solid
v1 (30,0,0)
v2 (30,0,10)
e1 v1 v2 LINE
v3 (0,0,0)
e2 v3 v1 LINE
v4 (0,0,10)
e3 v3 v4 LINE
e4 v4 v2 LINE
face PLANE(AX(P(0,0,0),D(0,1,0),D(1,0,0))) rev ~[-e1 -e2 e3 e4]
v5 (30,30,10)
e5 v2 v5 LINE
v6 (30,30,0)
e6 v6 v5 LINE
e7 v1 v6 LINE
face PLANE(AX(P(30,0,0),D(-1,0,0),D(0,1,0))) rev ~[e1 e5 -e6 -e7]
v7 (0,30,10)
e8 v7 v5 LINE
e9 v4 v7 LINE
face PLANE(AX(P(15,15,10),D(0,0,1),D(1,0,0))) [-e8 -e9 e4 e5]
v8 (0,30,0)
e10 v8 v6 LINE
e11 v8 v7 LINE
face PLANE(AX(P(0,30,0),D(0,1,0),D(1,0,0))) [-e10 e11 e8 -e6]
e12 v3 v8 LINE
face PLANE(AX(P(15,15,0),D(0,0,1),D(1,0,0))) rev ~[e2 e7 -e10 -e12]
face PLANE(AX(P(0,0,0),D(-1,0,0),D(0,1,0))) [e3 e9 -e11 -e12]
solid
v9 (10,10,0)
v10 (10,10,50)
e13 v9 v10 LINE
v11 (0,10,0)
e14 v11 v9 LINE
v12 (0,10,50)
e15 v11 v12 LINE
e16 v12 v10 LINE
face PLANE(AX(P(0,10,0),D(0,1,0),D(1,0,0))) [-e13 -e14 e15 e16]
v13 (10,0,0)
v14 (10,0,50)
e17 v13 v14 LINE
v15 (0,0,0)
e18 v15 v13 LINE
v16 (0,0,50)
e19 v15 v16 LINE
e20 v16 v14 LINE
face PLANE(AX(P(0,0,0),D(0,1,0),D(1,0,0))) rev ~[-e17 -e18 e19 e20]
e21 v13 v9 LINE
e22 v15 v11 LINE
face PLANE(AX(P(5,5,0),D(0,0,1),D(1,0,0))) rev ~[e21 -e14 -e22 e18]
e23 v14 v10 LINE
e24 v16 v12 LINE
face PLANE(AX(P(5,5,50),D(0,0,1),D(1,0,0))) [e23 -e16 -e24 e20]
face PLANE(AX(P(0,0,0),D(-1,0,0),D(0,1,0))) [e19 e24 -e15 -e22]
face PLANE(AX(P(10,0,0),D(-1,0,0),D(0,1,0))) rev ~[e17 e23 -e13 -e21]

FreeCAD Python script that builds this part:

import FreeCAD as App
import Part
import Sketcher
Q = App.Units.Quantity

doc = App.newDocument("Part")
params = doc.addObject("Spreadsheet::Sheet", "Params")
for row, (alias, value) in enumerate([
    ("sketch1_width", "30 mm"),
    ("pad1_length", "10 mm"),
    ("sketch2_width", "10 mm"),
    ("pad2_length", "50 mm"),
], start=1):
    params.set(f"A{row}", alias)
    params.set(f"B{row}", "=" + value)
    params.setAlias(f"B{row}", alias)

body = doc.addObject("PartDesign::Body", "Body")

# Sketch on XY plane
sketch1 = body.newObject("Sketcher::SketchObject", "Sketch")
sketch1.AttachmentSupport = (doc.getObject("XY_Plane"), [""])
sketch1.MapMode = "FlatFace"
sketch1.addGeometry(Part.LineSegment(App.Vector(0, 30, 0), App.Vector(0, 0, 0)), False)
sketch1.addGeometry(Part.LineSegment(App.Vector(0, 0, 0), App.Vector(30, 0, 0)), False)
sketch1.addGeometry(Part.LineSegment(App.Vector(30, 0, 0), App.Vector(30, 30, 0)), False)
sketch1.addGeometry(Part.LineSegment(App.Vector(30, 30, 0), App.Vector(0, 30, 0)), False)
sketch1.addConstraint(Sketcher.Constraint("Coincident", 0, 2, 1, 1))
sketch1.addConstraint(Sketcher.Constraint("Coincident", 1, 2, 2, 1))
sketch1.addConstraint(Sketcher.Constraint("Coincident", 2, 2, 3, 1))
sketch1.addConstraint(Sketcher.Constraint("Coincident", 3, 2, 0, 1))
sketch1.addConstraint(Sketcher.Constraint("Vertical", 0))
sketch1.addConstraint(Sketcher.Constraint("Horizontal", 1))
sketch1.addConstraint(Sketcher.Constraint("Vertical", 2))
sketch1.addConstraint(Sketcher.Constraint("Horizontal", 3))
sketch1.addConstraint(Sketcher.Constraint("Coincident", 0, 2, -1, 1))
sketch1.addConstraint(Sketcher.Constraint("Equal", 3, 0))
sketch1.addConstraint(Sketcher.Constraint("DistanceX", 1, 1, 1, 2, Q("30 mm")))
sketch1.setExpression("Constraints[10]", "Params.sketch1_width")
pad1 = body.newObject("PartDesign::Pad", "Pad")
pad1.Profile = sketch1
pad1.setExpression("Length", "Params.pad1_length")
body2 = doc.addObject("PartDesign::Body", "Body001")

# Sketch on XY plane
sketch2 = body2.newObject("Sketcher::SketchObject", "Sketch001")
sketch2.AttachmentSupport = (doc.getObject("XY_Plane001"), [""])
sketch2.MapMode = "FlatFace"
sketch2.addGeometry(Part.LineSegment(App.Vector(0, 10, 0), App.Vector(0, 0, 0)), False)
sketch2.addGeometry(Part.LineSegment(App.Vector(0, 0, 0), App.Vector(10, 0, 0)), False)
sketch2.addGeometry(Part.LineSegment(App.Vector(10, 0, 0), App.Vector(10, 10, 0)), False)
sketch2.addGeometry(Part.LineSegment(App.Vector(10, 10, 0), App.Vector(0, 10, 0)), False)
sketch2.addConstraint(Sketcher.Constraint("Coincident", 0, 2, 1, 1))
sketch2.addConstraint(Sketcher.Constraint("Coincident", 1, 2, 2, 1))
sketch2.addConstraint(Sketcher.Constraint("Coincident", 2, 2, 3, 1))
sketch2.addConstraint(Sketcher.Constraint("Coincident", 3, 2, 0, 1))
sketch2.addConstraint(Sketcher.Constraint("Vertical", 0))
sketch2.addConstraint(Sketcher.Constraint("Horizontal", 1))
sketch2.addConstraint(Sketcher.Constraint("Vertical", 2))
sketch2.addConstraint(Sketcher.Constraint("Horizontal", 3))
sketch2.addConstraint(Sketcher.Constraint("Coincident", 0, 2, -1, 1))
sketch2.addConstraint(Sketcher.Constraint("Equal", 3, 0))
sketch2.addConstraint(Sketcher.Constraint("DistanceX", 1, 1, 1, 2, Q("10 mm")))
sketch2.setExpression("Constraints[10]", "Params.sketch2_width")
pad2 = body2.newObject("PartDesign::Pad", "Pad001")
pad2.Profile = sketch2
pad2.setExpression("Length", "Params.pad2_length")

doc.recompute()
